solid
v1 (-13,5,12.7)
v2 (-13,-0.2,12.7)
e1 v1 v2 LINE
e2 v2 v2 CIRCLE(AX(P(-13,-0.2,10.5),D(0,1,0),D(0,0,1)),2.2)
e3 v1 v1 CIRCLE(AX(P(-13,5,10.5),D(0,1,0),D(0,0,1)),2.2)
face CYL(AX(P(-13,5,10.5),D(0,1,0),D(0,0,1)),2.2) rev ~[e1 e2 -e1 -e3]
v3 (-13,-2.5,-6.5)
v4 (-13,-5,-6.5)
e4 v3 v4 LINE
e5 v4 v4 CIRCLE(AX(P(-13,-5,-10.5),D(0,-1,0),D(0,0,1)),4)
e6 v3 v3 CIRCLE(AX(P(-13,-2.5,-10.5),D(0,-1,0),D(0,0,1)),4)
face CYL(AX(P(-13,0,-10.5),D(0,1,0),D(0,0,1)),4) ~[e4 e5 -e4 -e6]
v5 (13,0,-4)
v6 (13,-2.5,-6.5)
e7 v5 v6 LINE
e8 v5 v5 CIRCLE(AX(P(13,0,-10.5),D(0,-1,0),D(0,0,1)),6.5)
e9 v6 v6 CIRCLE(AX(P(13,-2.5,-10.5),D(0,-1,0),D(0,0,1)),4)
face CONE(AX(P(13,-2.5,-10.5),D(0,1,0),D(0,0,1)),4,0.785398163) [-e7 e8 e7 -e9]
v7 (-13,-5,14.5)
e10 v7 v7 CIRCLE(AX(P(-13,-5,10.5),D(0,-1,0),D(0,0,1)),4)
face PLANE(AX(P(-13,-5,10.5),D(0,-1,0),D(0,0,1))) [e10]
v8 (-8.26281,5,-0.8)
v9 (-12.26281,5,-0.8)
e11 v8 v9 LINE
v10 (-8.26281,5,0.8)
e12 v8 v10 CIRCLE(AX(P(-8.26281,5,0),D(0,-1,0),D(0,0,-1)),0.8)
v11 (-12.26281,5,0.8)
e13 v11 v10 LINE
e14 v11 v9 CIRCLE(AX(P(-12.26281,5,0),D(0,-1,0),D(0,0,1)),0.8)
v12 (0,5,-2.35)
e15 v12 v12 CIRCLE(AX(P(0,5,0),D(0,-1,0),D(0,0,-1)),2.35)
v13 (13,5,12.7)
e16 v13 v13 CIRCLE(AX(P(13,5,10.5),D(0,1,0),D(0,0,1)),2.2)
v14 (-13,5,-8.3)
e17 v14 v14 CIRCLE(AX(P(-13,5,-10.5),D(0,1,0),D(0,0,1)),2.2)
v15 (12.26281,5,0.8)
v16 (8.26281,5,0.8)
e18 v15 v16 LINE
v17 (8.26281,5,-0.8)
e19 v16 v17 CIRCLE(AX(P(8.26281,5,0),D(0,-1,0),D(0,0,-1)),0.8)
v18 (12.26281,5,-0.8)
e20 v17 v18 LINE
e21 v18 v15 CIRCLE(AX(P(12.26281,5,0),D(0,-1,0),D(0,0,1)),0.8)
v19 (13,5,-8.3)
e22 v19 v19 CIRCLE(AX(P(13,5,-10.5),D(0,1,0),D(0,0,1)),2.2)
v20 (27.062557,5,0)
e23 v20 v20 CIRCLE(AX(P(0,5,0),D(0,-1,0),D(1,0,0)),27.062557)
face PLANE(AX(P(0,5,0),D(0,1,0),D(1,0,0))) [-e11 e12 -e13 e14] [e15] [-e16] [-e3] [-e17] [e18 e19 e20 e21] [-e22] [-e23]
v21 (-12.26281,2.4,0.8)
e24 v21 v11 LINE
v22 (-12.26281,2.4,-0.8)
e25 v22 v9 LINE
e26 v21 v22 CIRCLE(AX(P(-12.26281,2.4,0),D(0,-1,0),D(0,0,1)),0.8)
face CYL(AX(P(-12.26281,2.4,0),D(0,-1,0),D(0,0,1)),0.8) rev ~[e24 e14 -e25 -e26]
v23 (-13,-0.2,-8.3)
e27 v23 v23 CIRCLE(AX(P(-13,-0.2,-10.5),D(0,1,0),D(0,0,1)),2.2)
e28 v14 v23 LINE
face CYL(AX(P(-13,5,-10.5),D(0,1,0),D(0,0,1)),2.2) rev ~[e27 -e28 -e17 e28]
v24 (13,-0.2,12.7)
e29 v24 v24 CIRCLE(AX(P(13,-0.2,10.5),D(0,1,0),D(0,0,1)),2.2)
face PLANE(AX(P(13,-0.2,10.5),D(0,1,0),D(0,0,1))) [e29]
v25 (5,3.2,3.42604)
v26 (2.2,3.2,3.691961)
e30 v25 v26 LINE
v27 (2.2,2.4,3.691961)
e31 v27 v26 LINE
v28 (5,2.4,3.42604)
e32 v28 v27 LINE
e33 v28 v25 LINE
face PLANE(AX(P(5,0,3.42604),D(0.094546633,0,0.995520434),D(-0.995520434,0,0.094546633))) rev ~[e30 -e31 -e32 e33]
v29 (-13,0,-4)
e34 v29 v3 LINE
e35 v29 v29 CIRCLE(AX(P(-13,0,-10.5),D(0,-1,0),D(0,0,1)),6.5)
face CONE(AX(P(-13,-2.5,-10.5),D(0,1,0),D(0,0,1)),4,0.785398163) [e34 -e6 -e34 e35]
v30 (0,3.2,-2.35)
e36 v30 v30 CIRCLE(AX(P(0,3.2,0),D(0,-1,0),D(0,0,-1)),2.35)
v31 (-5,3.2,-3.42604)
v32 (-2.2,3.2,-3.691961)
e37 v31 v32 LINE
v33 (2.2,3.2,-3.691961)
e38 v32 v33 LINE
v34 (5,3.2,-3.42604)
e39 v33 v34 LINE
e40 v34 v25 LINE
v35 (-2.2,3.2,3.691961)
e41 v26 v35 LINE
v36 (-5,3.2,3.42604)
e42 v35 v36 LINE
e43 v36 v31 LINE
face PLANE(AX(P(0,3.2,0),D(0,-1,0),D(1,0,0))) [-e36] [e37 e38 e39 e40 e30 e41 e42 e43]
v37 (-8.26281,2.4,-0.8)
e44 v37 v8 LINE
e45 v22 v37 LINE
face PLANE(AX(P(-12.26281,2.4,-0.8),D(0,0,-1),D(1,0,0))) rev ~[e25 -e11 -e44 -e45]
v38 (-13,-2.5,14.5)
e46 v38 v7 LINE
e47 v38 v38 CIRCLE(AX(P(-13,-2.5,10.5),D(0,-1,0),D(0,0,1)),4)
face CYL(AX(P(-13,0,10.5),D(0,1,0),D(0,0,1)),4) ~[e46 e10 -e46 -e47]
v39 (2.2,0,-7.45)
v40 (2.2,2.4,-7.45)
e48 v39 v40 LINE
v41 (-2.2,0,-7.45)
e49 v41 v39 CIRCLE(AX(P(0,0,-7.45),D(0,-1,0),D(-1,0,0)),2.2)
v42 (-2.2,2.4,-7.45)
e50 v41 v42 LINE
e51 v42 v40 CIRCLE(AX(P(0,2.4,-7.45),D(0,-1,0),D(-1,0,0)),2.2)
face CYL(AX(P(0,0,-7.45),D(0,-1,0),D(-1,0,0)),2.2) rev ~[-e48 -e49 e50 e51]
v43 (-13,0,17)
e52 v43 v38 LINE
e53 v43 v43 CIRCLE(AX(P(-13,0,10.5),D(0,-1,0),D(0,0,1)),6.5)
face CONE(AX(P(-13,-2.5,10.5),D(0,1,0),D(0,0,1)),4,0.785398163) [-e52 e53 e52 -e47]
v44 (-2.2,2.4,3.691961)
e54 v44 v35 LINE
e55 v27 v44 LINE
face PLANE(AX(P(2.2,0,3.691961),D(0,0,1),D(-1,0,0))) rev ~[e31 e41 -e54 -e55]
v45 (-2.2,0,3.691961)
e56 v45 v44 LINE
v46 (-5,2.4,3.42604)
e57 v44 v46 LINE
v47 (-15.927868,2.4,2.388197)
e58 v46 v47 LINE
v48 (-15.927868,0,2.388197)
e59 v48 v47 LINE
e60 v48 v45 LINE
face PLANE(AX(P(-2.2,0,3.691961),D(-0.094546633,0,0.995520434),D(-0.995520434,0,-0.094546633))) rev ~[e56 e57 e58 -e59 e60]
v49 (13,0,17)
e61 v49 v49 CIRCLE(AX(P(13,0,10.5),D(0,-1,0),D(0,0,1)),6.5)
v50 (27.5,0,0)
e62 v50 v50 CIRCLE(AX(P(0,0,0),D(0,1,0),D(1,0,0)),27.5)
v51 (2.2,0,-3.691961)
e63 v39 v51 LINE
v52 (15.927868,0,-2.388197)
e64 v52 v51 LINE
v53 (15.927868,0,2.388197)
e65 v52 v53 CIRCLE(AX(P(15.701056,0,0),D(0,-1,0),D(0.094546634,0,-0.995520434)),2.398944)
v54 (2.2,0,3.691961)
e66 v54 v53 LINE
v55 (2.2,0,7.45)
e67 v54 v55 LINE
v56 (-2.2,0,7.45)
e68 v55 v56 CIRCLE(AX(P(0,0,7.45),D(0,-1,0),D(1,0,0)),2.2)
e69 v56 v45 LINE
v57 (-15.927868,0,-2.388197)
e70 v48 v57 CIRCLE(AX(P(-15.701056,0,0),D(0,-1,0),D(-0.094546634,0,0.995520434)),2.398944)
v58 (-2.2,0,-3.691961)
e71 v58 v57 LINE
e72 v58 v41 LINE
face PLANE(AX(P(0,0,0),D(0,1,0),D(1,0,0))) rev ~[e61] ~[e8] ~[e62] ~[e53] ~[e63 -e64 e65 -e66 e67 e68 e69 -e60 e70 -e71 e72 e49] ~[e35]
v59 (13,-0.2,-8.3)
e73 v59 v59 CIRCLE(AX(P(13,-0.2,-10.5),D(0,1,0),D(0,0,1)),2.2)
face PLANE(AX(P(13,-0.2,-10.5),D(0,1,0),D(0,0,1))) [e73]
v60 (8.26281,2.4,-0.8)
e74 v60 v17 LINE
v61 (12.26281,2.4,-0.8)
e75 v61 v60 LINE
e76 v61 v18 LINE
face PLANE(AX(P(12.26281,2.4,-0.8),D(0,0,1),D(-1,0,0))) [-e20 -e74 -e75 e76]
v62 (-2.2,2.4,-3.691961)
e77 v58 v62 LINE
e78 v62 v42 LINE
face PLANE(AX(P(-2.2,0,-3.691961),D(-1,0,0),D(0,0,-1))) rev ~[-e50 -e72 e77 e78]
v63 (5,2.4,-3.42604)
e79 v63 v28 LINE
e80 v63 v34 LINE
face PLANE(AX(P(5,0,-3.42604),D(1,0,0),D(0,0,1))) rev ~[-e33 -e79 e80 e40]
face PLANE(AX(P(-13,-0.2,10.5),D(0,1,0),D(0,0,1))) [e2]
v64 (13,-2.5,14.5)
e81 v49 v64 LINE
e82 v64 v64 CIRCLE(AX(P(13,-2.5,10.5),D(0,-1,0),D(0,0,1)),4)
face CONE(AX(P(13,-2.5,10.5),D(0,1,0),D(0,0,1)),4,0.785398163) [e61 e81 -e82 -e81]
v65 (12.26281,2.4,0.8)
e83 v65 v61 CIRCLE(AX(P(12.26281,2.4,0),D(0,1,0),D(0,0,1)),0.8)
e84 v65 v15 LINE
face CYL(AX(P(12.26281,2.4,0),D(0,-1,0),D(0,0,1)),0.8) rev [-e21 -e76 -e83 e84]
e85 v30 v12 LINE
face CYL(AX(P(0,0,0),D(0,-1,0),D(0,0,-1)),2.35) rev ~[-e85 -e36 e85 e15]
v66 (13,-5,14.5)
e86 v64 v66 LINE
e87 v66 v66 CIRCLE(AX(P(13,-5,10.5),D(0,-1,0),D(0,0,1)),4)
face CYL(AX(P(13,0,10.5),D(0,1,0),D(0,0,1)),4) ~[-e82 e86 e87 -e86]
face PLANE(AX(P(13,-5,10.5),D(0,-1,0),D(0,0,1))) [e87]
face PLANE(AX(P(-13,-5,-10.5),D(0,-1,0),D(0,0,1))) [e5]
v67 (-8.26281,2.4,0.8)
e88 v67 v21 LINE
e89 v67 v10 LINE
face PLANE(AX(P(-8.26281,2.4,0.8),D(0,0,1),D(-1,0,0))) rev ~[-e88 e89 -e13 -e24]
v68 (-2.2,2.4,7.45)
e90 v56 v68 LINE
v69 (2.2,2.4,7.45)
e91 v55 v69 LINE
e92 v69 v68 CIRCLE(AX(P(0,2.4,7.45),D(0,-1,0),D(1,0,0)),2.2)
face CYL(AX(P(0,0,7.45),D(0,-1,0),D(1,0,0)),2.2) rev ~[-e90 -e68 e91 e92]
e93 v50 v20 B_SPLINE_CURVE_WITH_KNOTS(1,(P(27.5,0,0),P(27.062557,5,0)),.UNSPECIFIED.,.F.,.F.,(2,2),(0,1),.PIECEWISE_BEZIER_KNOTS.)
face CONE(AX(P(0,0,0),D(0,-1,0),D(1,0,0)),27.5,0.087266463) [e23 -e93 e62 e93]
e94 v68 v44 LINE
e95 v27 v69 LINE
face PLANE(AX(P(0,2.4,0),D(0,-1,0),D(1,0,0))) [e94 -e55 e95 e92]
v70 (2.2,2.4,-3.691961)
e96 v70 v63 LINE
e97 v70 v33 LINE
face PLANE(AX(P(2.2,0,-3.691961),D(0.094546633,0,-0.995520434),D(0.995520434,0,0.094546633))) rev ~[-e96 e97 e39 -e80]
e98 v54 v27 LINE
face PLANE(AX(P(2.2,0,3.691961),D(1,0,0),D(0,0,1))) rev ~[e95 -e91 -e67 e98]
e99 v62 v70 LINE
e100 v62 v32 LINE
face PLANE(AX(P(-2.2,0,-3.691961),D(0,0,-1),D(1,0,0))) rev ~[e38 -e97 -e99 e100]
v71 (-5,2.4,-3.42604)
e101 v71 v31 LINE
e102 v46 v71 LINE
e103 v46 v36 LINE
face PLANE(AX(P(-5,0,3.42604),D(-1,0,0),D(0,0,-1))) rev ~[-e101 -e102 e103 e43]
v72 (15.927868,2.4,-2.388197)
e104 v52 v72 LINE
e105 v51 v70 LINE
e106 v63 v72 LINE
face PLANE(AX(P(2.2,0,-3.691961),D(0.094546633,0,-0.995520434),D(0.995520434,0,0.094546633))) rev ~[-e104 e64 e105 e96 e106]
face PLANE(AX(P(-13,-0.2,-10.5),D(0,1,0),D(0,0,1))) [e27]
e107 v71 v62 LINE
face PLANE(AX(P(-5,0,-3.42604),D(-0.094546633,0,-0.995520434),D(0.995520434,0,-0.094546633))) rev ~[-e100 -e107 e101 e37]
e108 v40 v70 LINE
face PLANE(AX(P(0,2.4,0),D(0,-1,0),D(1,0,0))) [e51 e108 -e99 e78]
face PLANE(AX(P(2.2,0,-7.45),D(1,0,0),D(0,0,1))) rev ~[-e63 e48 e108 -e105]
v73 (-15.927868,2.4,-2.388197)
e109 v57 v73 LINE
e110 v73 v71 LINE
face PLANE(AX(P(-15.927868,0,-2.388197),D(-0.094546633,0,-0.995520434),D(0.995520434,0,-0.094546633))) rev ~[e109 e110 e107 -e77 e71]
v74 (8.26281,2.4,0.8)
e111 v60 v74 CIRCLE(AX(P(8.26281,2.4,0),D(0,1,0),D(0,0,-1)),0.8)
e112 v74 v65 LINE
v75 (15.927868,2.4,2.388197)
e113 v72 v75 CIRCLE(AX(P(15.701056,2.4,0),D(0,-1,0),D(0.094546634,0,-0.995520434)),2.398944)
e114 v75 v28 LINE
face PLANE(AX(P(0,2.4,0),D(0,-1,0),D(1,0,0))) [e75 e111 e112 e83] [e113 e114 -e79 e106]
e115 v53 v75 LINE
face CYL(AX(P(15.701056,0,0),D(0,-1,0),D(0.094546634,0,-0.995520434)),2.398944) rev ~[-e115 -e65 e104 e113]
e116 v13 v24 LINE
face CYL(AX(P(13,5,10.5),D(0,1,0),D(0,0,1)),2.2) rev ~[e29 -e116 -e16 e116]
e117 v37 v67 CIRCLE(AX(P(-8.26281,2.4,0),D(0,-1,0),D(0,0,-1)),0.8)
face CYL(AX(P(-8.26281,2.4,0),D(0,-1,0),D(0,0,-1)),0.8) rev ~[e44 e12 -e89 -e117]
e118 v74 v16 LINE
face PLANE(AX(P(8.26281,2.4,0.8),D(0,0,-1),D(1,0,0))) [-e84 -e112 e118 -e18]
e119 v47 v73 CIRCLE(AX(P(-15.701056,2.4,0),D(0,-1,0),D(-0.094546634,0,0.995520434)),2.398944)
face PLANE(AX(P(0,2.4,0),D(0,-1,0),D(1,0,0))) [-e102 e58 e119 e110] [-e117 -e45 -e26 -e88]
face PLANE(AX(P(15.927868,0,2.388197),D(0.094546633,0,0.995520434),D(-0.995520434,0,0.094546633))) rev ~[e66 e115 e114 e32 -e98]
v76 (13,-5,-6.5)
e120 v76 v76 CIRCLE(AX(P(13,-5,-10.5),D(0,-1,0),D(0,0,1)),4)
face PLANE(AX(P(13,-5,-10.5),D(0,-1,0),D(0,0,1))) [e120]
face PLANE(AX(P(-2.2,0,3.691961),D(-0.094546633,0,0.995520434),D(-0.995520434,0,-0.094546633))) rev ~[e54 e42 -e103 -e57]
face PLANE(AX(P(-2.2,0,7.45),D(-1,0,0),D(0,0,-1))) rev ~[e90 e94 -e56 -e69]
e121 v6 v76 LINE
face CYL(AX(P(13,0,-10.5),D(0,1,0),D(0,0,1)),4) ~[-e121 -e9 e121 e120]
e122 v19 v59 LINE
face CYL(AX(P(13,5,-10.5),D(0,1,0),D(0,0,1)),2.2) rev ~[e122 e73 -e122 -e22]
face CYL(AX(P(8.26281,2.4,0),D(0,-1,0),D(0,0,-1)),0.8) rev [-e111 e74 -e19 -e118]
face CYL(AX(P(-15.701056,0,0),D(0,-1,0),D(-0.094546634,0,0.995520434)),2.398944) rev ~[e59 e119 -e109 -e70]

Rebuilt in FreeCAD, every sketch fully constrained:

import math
import FreeCAD as App
import Part
import Sketcher

V = App.Vector
Q = App.Units.Quantity


def edges_at(feature, points):
    """Names of the edges that pass closest to the given points."""
    edges = feature.Shape.Edges
    near = lambda p: min(range(len(edges)), key=lambda i: edges[i].distToShape(Part.Vertex(*p))[0])
    return sorted({f"Edge{near(p) + 1}" for p in points})

doc = App.newDocument("Part")
body = doc.addObject("PartDesign::Body", "Body")

sketch1 = doc.addObject("Sketcher::SketchObject", "Sketch")
body.addObject(sketch1)
sketch1.AttachmentSupport = (doc.XZ_Plane, [""])
sketch1.MapMode = "FlatFace"
sketch1.addGeometry(Part.Circle(V(0, 0, 0), V(0, 0, 1), 28), False)
sketch1.addConstraint([
    Sketcher.Constraint("Coincident", 0, 3, -1, 1),
    Sketcher.Constraint("Diameter", 0, Q("55 mm")),
])
pad1 = doc.addObject("PartDesign::Pad", "Pad")
body.addObject(pad1)
pad1.Profile = sketch1
pad1.Length = 5
pad1.Reversed = True
pad1.TaperAngle = -5

sketch2 = doc.addObject("Sketcher::SketchObject", "Sketch001")
body.addObject(sketch2)
sketch2.AttachmentSupport = (doc.XZ_Plane, [""])
sketch2.MapMode = "FlatFace"
sketch2.addGeometry([
    Part.LineSegment(V(2.2, -3.7, 0), V(15.9, -2.4, 0)),
    Part.ArcOfCircle(Part.Circle(V(15.7, 0, 0), V(0, 0, 1), 2.4), math.radians(-85), math.radians(85)),
    Part.LineSegment(V(15.9, 2.4, 0), V(2.2, 3.7, 0)),
    Part.LineSegment(V(2.2, 3.7, 0), V(2.2, 7.5, 0)),
    Part.ArcOfCircle(Part.Circle(V(0, 7.5, 0), V(0, 0, 1), 2.2), math.radians(0), math.radians(180)),
    Part.LineSegment(V(-2.2, 7.5, 0), V(-2.2, 3.7, 0)),
    Part.LineSegment(V(-2.2, 3.7, 0), V(-15.9, 2.4, 0)),
    Part.ArcOfCircle(Part.Circle(V(-15.7, 0, 0), V(0, 0, 1), 2.4), math.radians(95), math.radians(265)),
    Part.LineSegment(V(-15.9, -2.4, 0), V(-2.2, -3.7, 0)),
    Part.LineSegment(V(-2.2, -3.7, 0), V(-2.2, -7.5, 0)),
    Part.ArcOfCircle(Part.Circle(V(0, -7.5, 0), V(0, 0, 1), 2.2), math.radians(180), math.radians(360)),
    Part.LineSegment(V(2.2, -7.5, 0), V(2.2, -3.7, 0)),
    Part.Circle(V(0, 0, 0), V(0, 0, 1), 3.6),
], False)
sketch2.addConstraint([
    Sketcher.Constraint("Tangent", 0, 2, 1, 1),
    Sketcher.Constraint("Tangent", 1, 2, 2, 1),
    Sketcher.Constraint("Coincident", 2, 2, 3, 1),
    Sketcher.Constraint("Tangent", 3, 2, 4, 1),
    Sketcher.Constraint("Tangent", 4, 2, 5, 1),
    Sketcher.Constraint("Coincident", 5, 2, 6, 1),
    Sketcher.Constraint("Tangent", 6, 2, 7, 1),
    Sketcher.Constraint("Tangent", 7, 2, 8, 1),
    Sketcher.Constraint("Coincident", 8, 2, 9, 1),
    Sketcher.Constraint("Tangent", 9, 2, 10, 1),
    Sketcher.Constraint("Tangent", 10, 2, 11, 1),
    Sketcher.Constraint("Coincident", 11, 2, 0, 1),
    Sketcher.Constraint("Vertical", 3),
    Sketcher.Constraint("Vertical", 5),
    Sketcher.Constraint("Vertical", 9),
    Sketcher.Constraint("Vertical", 11),
    Sketcher.Constraint("Coincident", 12, 3, -1, 1),
    Sketcher.Constraint("Equal", 1, 7),
    Sketcher.Constraint("Equal", 4, 10),
    Sketcher.Constraint("Symmetric", 1, 3, 7, 3, -1, 1),
    Sketcher.Constraint("Symmetric", 4, 3, 10, 3, -1, 1),
    Sketcher.Constraint("Symmetric", 2, 2, 5, 2, -2),
    Sketcher.Constraint("Symmetric", 0, 2, 7, 2, -2),
    Sketcher.Constraint("Parallel", 0, 6),
    Sketcher.Constraint("Radius", 4, Q("2.2 mm")),
    Sketcher.Constraint("Diameter", 12, Q("7.25 mm")),
    Sketcher.Constraint("DistanceY", 10, 3, 4, 3, Q("14.9 mm")),
    Sketcher.Constraint("Radius", 1, Q("2.398944 mm")),
    Sketcher.Constraint("DistanceY", 3, 1, 3, 2, Q("3.758039 mm")),
    Sketcher.Constraint("Distance", 0, Q("13.78964 mm")),
])
pocket1 = doc.addObject("PartDesign::Pocket", "Pocket")
body.addObject(pocket1)
pocket1.Profile = sketch2
pocket1.Length = 2.4

sketch3 = doc.addObject("Sketcher::SketchObject", "Sketch002")
body.addObject(sketch3)
sketch3.AttachmentSupport = (doc.XZ_Plane, [""])
sketch3.MapMode = "FlatFace"
sketch3.addGeometry(Part.Circle(V(0, 0, 0), V(0, 0, 1), 2.4), False)
sketch3.addConstraint([
    Sketcher.Constraint("Coincident", 0, 3, -1, 1),
    Sketcher.Constraint("Diameter", 0, Q("4.7 mm")),
])
pocket2 = doc.addObject("PartDesign::Pocket", "Pocket001")
body.addObject(pocket2)
pocket2.Profile = sketch3
pocket2.Length = 14

sketch4 = doc.addObject("Sketcher::SketchObject", "Sketch003")
body.addObject(sketch4)
sketch4.AttachmentSupport = (doc.XZ_Plane, [""])
sketch4.MapMode = "FlatFace"
sketch4.addGeometry([
    Part.LineSegment(V(-5, 3.4, 0), V(-5, -3.4, 0)),
    Part.LineSegment(V(-5, -3.4, 0), V(-2.2, -3.7, 0)),
    Part.LineSegment(V(-2.2, -3.7, 0), V(2.2, -3.7, 0)),
    Part.LineSegment(V(2.2, -3.7, 0), V(5, -3.4, 0)),
    Part.LineSegment(V(5, -3.4, 0), V(5, 3.4, 0)),
    Part.LineSegment(V(5, 3.4, 0), V(2.2, 3.7, 0)),
    Part.LineSegment(V(2.2, 3.7, 0), V(-2.2, 3.7, 0)),
    Part.LineSegment(V(-2.2, 3.7, 0), V(-5, 3.4, 0)),
], False)
sketch4.addConstraint([
    Sketcher.Constraint("Coincident", 0, 2, 1, 1),
    Sketcher.Constraint("Coincident", 1, 2, 2, 1),
    Sketcher.Constraint("Coincident", 2, 2, 3, 1),
    Sketcher.Constraint("Coincident", 3, 2, 4, 1),
    Sketcher.Constraint("Coincident", 4, 2, 5, 1),
    Sketcher.Constraint("Coincident", 5, 2, 6, 1),
    Sketcher.Constraint("Coincident", 6, 2, 7, 1),
    Sketcher.Constraint("Coincident", 7, 2, 0, 1),
    Sketcher.Constraint("Vertical", 0),
    Sketcher.Constraint("Horizontal", 2),
    Sketcher.Constraint("Vertical", 4),
    Sketcher.Constraint("Horizontal", 6),
    Sketcher.Constraint("Symmetric", 0, 2, 4, 2, -1, 1),
    Sketcher.Constraint("Symmetric", 1, 2, 5, 2, -1, 1),
    Sketcher.Constraint("Parallel", 3, 7),
    Sketcher.Constraint("Horizontal", 0, 2, 3, 2),
    Sketcher.Constraint("Horizontal", 4, 2, 7, 2),
    Sketcher.Constraint("Vertical", 2, 2, 5, 2),
    Sketcher.Constraint("DistanceX", 2, 1, 2, 2, Q("4.4 mm")),
    Sketcher.Constraint("DistanceX", 0, 2, -1, 1, Q("5 mm")),
    Sketcher.Constraint("DistanceY", 2, 2, 4, 2, Q("7.118001 mm")),
    Sketcher.Constraint("Distance", 1, Q("2.812599 mm")),
])
pocket3 = doc.addObject("PartDesign::Pocket", "Pocket002")
body.addObject(pocket3)
pocket3.Profile = sketch4
pocket3.Length = 3.2

sketch5 = doc.addObject("Sketcher::SketchObject", "Sketch004")
body.addObject(sketch5)
sketch5.AttachmentSupport = (doc.XZ_Plane, [""])
sketch5.MapMode = "FlatFace"
sketch5.AttachmentOffset = App.Placement(V(0, 0, -2.4), App.Rotation())
sketch5.addGeometry([
    Part.LineSegment(V(8.3, -0.8, 0), V(12.3, -0.8, 0)),
    Part.ArcOfCircle(Part.Circle(V(12.3, 0, 0), V(0, 0, 1), 0.8), math.radians(-90), math.radians(90)),
    Part.LineSegment(V(12.3, 0.8, 0), V(8.3, 0.8, 0)),
    Part.ArcOfCircle(Part.Circle(V(8.3, 0, 0), V(0, 0, 1), 0.8), math.radians(90), math.radians(270)),
    Part.LineSegment(V(-12.3, -0.8, 0), V(-8.3, -0.8, 0)),
    Part.ArcOfCircle(Part.Circle(V(-8.3, 0, 0), V(0, 0, 1), 0.8), math.radians(-90), math.radians(90)),
    Part.LineSegment(V(-8.3, 0.8, 0), V(-12.3, 0.8, 0)),
    Part.ArcOfCircle(Part.Circle(V(-12.3, 0, 0), V(0, 0, 1), 0.8), math.radians(90), math.radians(270)),
], False)
sketch5.addConstraint([
    Sketcher.Constraint("Tangent", 0, 2, 1, 1),
    Sketcher.Constraint("Tangent", 1, 2, 2, 1),
    Sketcher.Constraint("Tangent", 2, 2, 3, 1),
    Sketcher.Constraint("Tangent", 3, 2, 0, 1),
    Sketcher.Constraint("Tangent", 4, 2, 5, 1),
    Sketcher.Constraint("Tangent", 5, 2, 6, 1),
    Sketcher.Constraint("Tangent", 6, 2, 7, 1),
    Sketcher.Constraint("Tangent", 7, 2, 4, 1),
    Sketcher.Constraint("Horizontal", 0),
    Sketcher.Constraint("Horizontal", 2),
    Sketcher.Constraint("Horizontal", 4),
    Sketcher.Constraint("Horizontal", 6),
    Sketcher.Constraint("Equal", 3, 5),
    Sketcher.Constraint("Symmetric", 3, 3, 5, 3, -1, 1),
    Sketcher.Constraint("Symmetric", 1, 3, 7, 3, -2),
    Sketcher.Constraint("Radius", 1, Q("0.8 mm")),
    Sketcher.Constraint("DistanceX", 0, 1, 0, 2, Q("4 mm")),
    Sketcher.Constraint("DistanceX", -1, 1, 1, 3, Q("12.26281 mm")),
])
pocket4 = doc.addObject("PartDesign::Pocket", "Pocket003")
body.addObject(pocket4)
pocket4.Profile = sketch5
pocket4.Length = 3.5

sketch6 = doc.addObject("Sketcher::SketchObject", "Sketch005")
body.addObject(sketch6)
sketch6.AttachmentSupport = (doc.XZ_Plane, [""])
sketch6.MapMode = "FlatFace"
sketch6.addGeometry([
    Part.Circle(V(-13, 10.5, 0), V(0, 0, 1), 4),
    Part.Circle(V(13, 10.5, 0), V(0, 0, 1), 4),
    Part.Circle(V(13, -10.5, 0), V(0, 0, 1), 4),
    Part.Circle(V(-13, -10.5, 0), V(0, 0, 1), 4),
], False)
sketch6.addConstraint([
    Sketcher.Constraint("Equal", 0, 1),
    Sketcher.Constraint("Equal", 1, 2),
    Sketcher.Constraint("Equal", 2, 3),
    Sketcher.Constraint("Symmetric", 0, 3, 2, 3, -1, 1),
    Sketcher.Constraint("Symmetric", 1, 3, 3, 3, -1, 1),
    Sketcher.Constraint("Symmetric", 0, 3, 1, 3, -2),
    Sketcher.Constraint("Diameter", 0, Q("8 mm")),
    Sketcher.Constraint("DistanceX", 0, 3, -1, 1, Q("13 mm")),
    Sketcher.Constraint("DistanceY", 2, 3, 1, 3, Q("21 mm")),
])
pad2 = doc.addObject("PartDesign::Pad", "Pad001")
body.addObject(pad2)
pad2.Profile = sketch6
pad2.Length = 5

sketch7 = doc.addObject("Sketcher::SketchObject", "Sketch006")
body.addObject(sketch7)
sketch7.AttachmentSupport = (doc.XZ_Plane, [""])
sketch7.MapMode = "FlatFace"
sketch7.AttachmentOffset = App.Placement(V(0, 0, -5), App.Rotation())
sketch7.addGeometry([
    Part.Circle(V(13, -10.5, 0), V(0, 0, 1), 2.2),
    Part.Circle(V(-13, -10.5, 0), V(0, 0, 1), 2.2),
    Part.Circle(V(-13, 10.5, 0), V(0, 0, 1), 2.2),
    Part.Circle(V(13, 10.5, 0), V(0, 0, 1), 2.2),
], False)
sketch7.addConstraint([
    Sketcher.Constraint("Equal", 0, 1),
    Sketcher.Constraint("Equal", 1, 2),
    Sketcher.Constraint("Equal", 2, 3),
    Sketcher.Constraint("Symmetric", 0, 3, 2, 3, -1, 1),
    Sketcher.Constraint("Symmetric", 1, 3, 3, 3, -1, 1),
    Sketcher.Constraint("Symmetric", 0, 3, 1, 3, -2),
    Sketcher.Constraint("Diameter", 0, Q("4.4 mm")),
    Sketcher.Constraint("DistanceX", -1, 1, 0, 3, Q("13 mm")),
    Sketcher.Constraint("DistanceY", 1, 3, 2, 3, Q("21 mm")),
])
pocket5 = doc.addObject("PartDesign::Pocket", "Pocket004")
body.addObject(pocket5)
pocket5.Profile = sketch7
pocket5.Length = 5.2
pocket5.Reversed = True
doc.recompute()

chamfer = doc.addObject("PartDesign::Chamfer", "Chamfer")
body.addObject(chamfer)
chamfer.Base = (pocket5, edges_at(pocket5, [
    (-13, 0, 6.5),
    (13, 0, 6.5),
    (13, 0, -14.5),
    (-13, 0, -14.5),
]))
chamfer.Size = 2.5

doc.recompute()
